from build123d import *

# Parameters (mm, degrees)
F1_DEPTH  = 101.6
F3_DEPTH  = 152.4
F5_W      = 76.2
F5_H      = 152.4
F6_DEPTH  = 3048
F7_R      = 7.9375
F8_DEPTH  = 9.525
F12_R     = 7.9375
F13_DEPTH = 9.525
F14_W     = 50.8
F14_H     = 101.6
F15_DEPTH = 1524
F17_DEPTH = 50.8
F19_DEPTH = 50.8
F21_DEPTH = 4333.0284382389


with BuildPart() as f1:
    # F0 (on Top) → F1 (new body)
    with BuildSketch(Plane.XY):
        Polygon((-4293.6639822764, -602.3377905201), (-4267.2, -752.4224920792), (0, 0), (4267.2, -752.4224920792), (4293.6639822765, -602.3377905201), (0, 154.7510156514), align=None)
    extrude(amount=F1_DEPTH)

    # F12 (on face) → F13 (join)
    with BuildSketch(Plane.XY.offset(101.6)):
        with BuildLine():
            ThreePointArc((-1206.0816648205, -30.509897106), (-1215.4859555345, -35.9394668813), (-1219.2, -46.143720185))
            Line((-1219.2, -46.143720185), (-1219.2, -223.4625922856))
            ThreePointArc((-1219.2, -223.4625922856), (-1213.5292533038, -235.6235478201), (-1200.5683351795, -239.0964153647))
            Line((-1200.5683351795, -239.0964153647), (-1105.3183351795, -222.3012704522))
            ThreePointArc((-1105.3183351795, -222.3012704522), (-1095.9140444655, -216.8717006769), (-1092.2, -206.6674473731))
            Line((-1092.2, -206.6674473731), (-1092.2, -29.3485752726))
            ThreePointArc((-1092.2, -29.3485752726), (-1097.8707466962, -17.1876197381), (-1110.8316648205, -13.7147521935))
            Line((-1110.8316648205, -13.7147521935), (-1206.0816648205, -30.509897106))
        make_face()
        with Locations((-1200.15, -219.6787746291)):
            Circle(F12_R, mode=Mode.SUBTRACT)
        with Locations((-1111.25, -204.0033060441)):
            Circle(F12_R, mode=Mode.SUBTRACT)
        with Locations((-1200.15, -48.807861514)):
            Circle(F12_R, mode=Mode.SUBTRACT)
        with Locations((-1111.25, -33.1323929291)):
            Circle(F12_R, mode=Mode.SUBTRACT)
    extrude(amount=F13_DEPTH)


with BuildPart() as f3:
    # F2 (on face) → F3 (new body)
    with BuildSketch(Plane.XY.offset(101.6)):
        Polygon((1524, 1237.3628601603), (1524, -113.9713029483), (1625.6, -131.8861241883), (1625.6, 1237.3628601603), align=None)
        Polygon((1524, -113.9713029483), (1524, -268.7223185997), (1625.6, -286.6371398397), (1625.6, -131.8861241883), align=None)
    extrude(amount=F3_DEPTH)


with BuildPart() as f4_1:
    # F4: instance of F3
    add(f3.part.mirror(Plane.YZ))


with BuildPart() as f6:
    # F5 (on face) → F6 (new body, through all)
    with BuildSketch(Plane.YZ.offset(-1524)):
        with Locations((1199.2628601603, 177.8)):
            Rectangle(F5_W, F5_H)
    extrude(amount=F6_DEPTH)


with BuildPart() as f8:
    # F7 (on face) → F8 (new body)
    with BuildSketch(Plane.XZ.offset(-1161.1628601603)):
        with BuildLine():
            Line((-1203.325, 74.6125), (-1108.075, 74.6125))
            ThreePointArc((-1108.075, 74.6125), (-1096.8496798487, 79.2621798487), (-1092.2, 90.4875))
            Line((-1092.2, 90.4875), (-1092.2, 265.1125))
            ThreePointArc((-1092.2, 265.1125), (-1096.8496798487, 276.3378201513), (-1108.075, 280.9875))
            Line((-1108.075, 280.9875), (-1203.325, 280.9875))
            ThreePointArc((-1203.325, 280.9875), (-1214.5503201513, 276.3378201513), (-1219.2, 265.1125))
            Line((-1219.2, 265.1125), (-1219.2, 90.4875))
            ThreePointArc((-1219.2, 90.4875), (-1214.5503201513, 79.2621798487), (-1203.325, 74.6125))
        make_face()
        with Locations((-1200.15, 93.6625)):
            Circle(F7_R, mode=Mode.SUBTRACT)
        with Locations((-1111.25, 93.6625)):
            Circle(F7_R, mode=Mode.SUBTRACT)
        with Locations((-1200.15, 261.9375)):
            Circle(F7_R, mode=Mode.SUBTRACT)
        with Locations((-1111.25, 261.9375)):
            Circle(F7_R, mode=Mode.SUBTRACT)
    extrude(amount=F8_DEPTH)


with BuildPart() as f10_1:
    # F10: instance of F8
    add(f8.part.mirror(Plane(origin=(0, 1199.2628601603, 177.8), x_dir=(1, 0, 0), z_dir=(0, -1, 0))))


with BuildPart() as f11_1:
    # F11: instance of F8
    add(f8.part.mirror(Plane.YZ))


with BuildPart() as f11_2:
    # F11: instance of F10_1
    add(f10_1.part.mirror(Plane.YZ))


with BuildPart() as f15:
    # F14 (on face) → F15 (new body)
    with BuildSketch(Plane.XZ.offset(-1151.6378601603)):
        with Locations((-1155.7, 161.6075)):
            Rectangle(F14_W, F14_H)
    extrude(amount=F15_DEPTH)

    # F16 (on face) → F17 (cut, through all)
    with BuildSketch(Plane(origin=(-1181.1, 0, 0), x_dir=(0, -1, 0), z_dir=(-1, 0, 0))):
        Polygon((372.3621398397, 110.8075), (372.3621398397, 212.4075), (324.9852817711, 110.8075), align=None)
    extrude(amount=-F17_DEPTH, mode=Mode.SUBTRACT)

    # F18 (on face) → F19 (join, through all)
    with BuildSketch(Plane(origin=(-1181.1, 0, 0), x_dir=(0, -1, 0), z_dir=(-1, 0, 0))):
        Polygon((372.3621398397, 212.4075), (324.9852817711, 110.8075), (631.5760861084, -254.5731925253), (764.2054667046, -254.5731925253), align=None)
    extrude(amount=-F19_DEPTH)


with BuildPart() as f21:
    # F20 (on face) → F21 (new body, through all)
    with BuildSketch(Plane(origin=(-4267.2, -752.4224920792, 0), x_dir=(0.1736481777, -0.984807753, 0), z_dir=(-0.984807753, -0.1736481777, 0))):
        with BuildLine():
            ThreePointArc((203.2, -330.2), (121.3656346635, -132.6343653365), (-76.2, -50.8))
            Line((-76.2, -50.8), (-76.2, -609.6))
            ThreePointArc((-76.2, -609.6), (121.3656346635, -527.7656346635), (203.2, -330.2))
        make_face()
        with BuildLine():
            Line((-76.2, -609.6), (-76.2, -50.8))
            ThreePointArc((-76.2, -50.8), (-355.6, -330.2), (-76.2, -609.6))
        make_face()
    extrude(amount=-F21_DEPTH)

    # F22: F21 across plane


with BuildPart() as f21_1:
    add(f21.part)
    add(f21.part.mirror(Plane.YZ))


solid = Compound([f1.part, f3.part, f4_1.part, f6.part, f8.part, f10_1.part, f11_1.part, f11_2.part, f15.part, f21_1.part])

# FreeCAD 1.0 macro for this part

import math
import FreeCAD as App
import Part
import Sketcher
from FreeCAD import Vector
Q = App.Units.Quantity

doc = App.newDocument("Part")
body = doc.addObject("PartDesign::Body", "Body")

# Sketch on XY plane
sketch1 = doc.addObject("Sketcher::SketchObject", "Sketch")
body.addObject(sketch1)
sketch1.AttachmentSupport = (doc.XY_Plane, [""])
sketch1.MapMode = "FlatFace"
sketch1.addGeometry([
    Part.LineSegment(Vector(-4293.663982, -602.337791, 0), Vector(-4267.2, -752.422492, 0)),  # 0
    Part.LineSegment(Vector(-4267.2, -752.422492, 0), Vector(0, 0, 0)),  # 1
    Part.LineSegment(Vector(0, 0, 0), Vector(4267.2, -752.422492, 0)),  # 2
    Part.LineSegment(Vector(4267.2, -752.422492, 0), Vector(4293.663982, -602.337791, 0)),  # 3
    Part.LineSegment(Vector(4293.663982, -602.337791, 0), Vector(0, 154.751016, 0)),  # 4
    Part.LineSegment(Vector(0, 154.751016, 0), Vector(-4293.663982, -602.337791, 0)),  # 5
], False)
sketch1.addConstraint([
    Sketcher.Constraint("Coincident", 0, 2, 1, 1),
    Sketcher.Constraint("Coincident", 1, 2, 2, 1),
    Sketcher.Constraint("Coincident", 2, 2, 3, 1),
    Sketcher.Constraint("Coincident", 3, 2, 4, 1),
    Sketcher.Constraint("Coincident", 4, 2, 5, 1),
    Sketcher.Constraint("Coincident", 5, 2, 0, 1),
    Sketcher.Constraint("Coincident", 1, 2, -1, 1),
    Sketcher.Constraint("Symmetric", 0, 2, 2, 2, -2),
    Sketcher.Constraint("Symmetric", 3, 2, 5, 2, -2),
    Sketcher.Constraint("PointOnObject", 4, 2, -2),
    Sketcher.Constraint("Perpendicular", 0, 1),
    Sketcher.Constraint("Perpendicular", 3, 4),
    Sketcher.Constraint("Distance", 0, Q("6 in")),
    Sketcher.Constraint("DistanceX", 0, 2, -1, 1, Q("168 in")),
    Sketcher.Constraint("Angle", 0, Q("-80 deg")),
])
pad1 = doc.addObject("PartDesign::Pad", "Pad")
body.addObject(pad1)
pad1.Profile = sketch1
pad1.Length = Q("4 in")

# Sketch on XY plane
sketch2 = doc.addObject("Sketcher::SketchObject", "Sketch001")
body.addObject(sketch2)
sketch2.AttachmentSupport = (doc.XY_Plane, [""])
sketch2.MapMode = "FlatFace"
sketch2.AttachmentOffset = App.Placement(Vector(0, 0, 4 * 25.4), App.Rotation())
sketch2.addGeometry([
    Part.ArcOfCircle(Part.Circle(Vector(-1203.325, -46.14372, 0), Vector(0, 0, 1), 15.875), math.radians(100), math.radians(180)),  # 0
    Part.LineSegment(Vector(-1219.2, -46.14372, 0), Vector(-1219.2, -223.462592, 0)),  # 1
    Part.ArcOfCircle(Part.Circle(Vector(-1203.325, -223.462592, 0), Vector(0, 0, 1), 15.875), math.radians(180), math.radians(280)),  # 2
    Part.LineSegment(Vector(-1200.568335, -239.096415, 0), Vector(-1105.318335, -222.30127, 0)),  # 3
    Part.ArcOfCircle(Part.Circle(Vector(-1108.075, -206.667447, 0), Vector(0, 0, 1), 15.875), math.radians(-80), math.radians(0)),  # 4
    Part.LineSegment(Vector(-1092.2, -206.667447, 0), Vector(-1092.2, -29.348575, 0)),  # 5
    Part.ArcOfCircle(Part.Circle(Vector(-1108.075, -29.348575, 0), Vector(0, 0, 1), 15.875), math.radians(0), math.radians(100)),  # 6
    Part.LineSegment(Vector(-1110.831665, -13.714752, 0), Vector(-1206.081665, -30.509897, 0)),  # 7
    Part.Circle(Vector(-1200.15, -219.678775, 0), Vector(0, 0, 1), 7.9375),  # 8
    Part.Circle(Vector(-1111.25, -204.003306, 0), Vector(0, 0, 1), 7.9375),  # 9
    Part.Circle(Vector(-1200.15, -48.807862, 0), Vector(0, 0, 1), 7.9375),  # 10
    Part.Circle(Vector(-1111.25, -33.132393, 0), Vector(0, 0, 1), 7.9375),  # 11
], False)
sketch2.addConstraint([
    Sketcher.Constraint("Tangent", 0, 2, 1, 1),
    Sketcher.Constraint("Tangent", 1, 2, 2, 1),
    Sketcher.Constraint("Tangent", 2, 2, 3, 1),
    Sketcher.Constraint("Tangent", 3, 2, 4, 1),
    Sketcher.Constraint("Tangent", 4, 2, 5, 1),
    Sketcher.Constraint("Tangent", 5, 2, 6, 1),
    Sketcher.Constraint("Tangent", 6, 2, 7, 1),
    Sketcher.Constraint("Tangent", 7, 2, 0, 1),
    Sketcher.Constraint("Vertical", 1),
    Sketcher.Constraint("Vertical", 5),
    Sketcher.Constraint("Equal", 0, 2),
    Sketcher.Constraint("Equal", 2, 4),
    Sketcher.Constraint("Equal", 4, 6),
    Sketcher.Constraint("Equal", 8, 9),
    Sketcher.Constraint("Equal", 9, 10),
    Sketcher.Constraint("Equal", 10, 11),
    Sketcher.Constraint("Parallel", 3, 7),
    Sketcher.Constraint("Vertical", 8, 3, 10, 3),
    Sketcher.Constraint("Vertical", 9, 3, 11, 3),
    Sketcher.Constraint("Diameter", 8, Q("0.625 in")),
    Sketcher.Constraint("DistanceX", 0, 2, -1, 1, Q("48 in")),
    Sketcher.Constraint("DistanceX", 4, 2, -1, 1, Q("43 in")),
    Sketcher.Constraint("Angle", 3, Q("10 deg")),
    Sketcher.Constraint("Radius", 0, Q("0.625 in")),
    Sketcher.Constraint("DistanceX", 8, 3, 9, 3, Q("3.5 in")),
    Sketcher.Constraint("DistanceX", 8, 3, -1, 1, Q("47.25 in")),
    Sketcher.Constraint("DistanceY", 8, 3, 6, 3, Q("190.330199 mm")),
    Sketcher.Constraint("DistanceY", 1, 2, 1, 1, Q("177.318872 mm")),
    Sketcher.Constraint("DistanceY", 0, 3, -1, 1, Q("46.14372 mm")),
    Sketcher.Constraint("DistanceY", 10, 3, -1, 1, Q("48.807862 mm")),
    Sketcher.Constraint("DistanceY", 4, 3, 9, 3, Q("2.664141 mm")),
    Sketcher.Constraint("DistanceY", 10, 3, 11, 3, Q("15.675469 mm")),
])
pad2 = doc.addObject("PartDesign::Pad", "Pad001")
body.addObject(pad2)
pad2.Profile = sketch2
pad2.Length = Q("0.375 in")
body2 = doc.addObject("PartDesign::Body", "Body001")

# Sketch on XY plane
sketch3 = doc.addObject("Sketcher::SketchObject", "Sketch002")
body2.addObject(sketch3)
sketch3.AttachmentSupport = (doc.getObject("XY_Plane001"), [""])
sketch3.MapMode = "FlatFace"
sketch3.AttachmentOffset = App.Placement(Vector(0, 0, 4 * 25.4), App.Rotation())
sketch3.addGeometry([
    Part.LineSegment(Vector(1524, 1237.36286, 0), Vector(1524, -268.722319, 0)),
    Part.LineSegment(Vector(1524, -268.722319, 0), Vector(1625.6, -286.63714, 0)),
    Part.LineSegment(Vector(1625.6, -286.63714, 0), Vector(1625.6, 1237.36286, 0)),
    Part.LineSegment(Vector(1625.6, 1237.36286, 0), Vector(1524, 1237.36286, 0)),
], False)
sketch3.addConstraint([
    Sketcher.Constraint("Coincident", 0, 2, 1, 1),
    Sketcher.Constraint("Coincident", 1, 2, 2, 1),
    Sketcher.Constraint("Coincident", 2, 2, 3, 1),
    Sketcher.Constraint("Coincident", 3, 2, 0, 1),
    Sketcher.Constraint("Vertical", 0),
    Sketcher.Constraint("Vertical", 2),
    Sketcher.Constraint("Horizontal", 3),
    Sketcher.Constraint("DistanceX", 3, 2, 3, 1, Q("4 in")),
    Sketcher.Constraint("DistanceY", 2, 1, 2, 2, Q("60 in")),
    Sketcher.Constraint("DistanceX", -1, 1, 0, 2, Q("60 in")),
    Sketcher.Constraint("Angle", 1, Q("-10 deg")),
    Sketcher.Constraint("DistanceY", 0, 2, -1, 1, Q("268.722319 mm")),
])
pad3 = doc.addObject("PartDesign::Pad", "Pad002")
body2.addObject(pad3)
pad3.Profile = sketch3
pad3.Length = Q("6 in")
body3 = doc.addObject("PartDesign::Body", "Body002")
doc.recompute()

mirroring = doc.addObject("Part::Mirroring", "Mirroring")
mirroring.Source = body2
mirroring.Base = Vector(0, 0, 0)
mirroring.Normal = Vector(1, 0, 0)
body3.BaseFeature = mirroring
doc.recompute()
body4 = doc.addObject("PartDesign::Body", "Body003")

# Sketch on YZ plane
sketch4 = doc.addObject("Sketcher::SketchObject", "Sketch003")
body4.addObject(sketch4)
sketch4.AttachmentSupport = (doc.getObject("YZ_Plane003"), [""])
sketch4.MapMode = "FlatFace"
sketch4.AttachmentOffset = App.Placement(Vector(0, 0, -60 * 25.4), App.Rotation())
sketch4.addGeometry([
    Part.LineSegment(Vector(1161.16286, 254, 0), Vector(1161.16286, 101.6, 0)),
    Part.LineSegment(Vector(1161.16286, 101.6, 0), Vector(1237.36286, 101.6, 0)),
    Part.LineSegment(Vector(1237.36286, 101.6, 0), Vector(1237.36286, 254, 0)),
    Part.LineSegment(Vector(1237.36286, 254, 0), Vector(1161.16286, 254, 0)),
], False)
sketch4.addConstraint([
    Sketcher.Constraint("Coincident", 0, 2, 1, 1),
    Sketcher.Constraint("Coincident", 1, 2, 2, 1),
    Sketcher.Constraint("Coincident", 2, 2, 3, 1),
    Sketcher.Constraint("Coincident", 3, 2, 0, 1),
    Sketcher.Constraint("Vertical", 0),
    Sketcher.Constraint("Horizontal", 1),
    Sketcher.Constraint("Vertical", 2),
    Sketcher.Constraint("Horizontal", 3),
    Sketcher.Constraint("DistanceX", 1, 1, 1, 2, Q("3 in")),
    Sketcher.Constraint("DistanceY", 0, 2, 0, 1, Q("6 in")),
    Sketcher.Constraint("DistanceY", -1, 1, 0, 2, Q("4 in")),
    Sketcher.Constraint("DistanceX", -1, 1, 0, 2, Q("1161.16286 mm")),
])
pad4 = doc.addObject("PartDesign::Pad", "Pad003")
body4.addObject(pad4)
pad4.Profile = sketch4
pad4.Length = Q("120 in")
body5 = doc.addObject("PartDesign::Body", "Body004")

# Sketch on XZ plane
sketch5 = doc.addObject("Sketcher::SketchObject", "Sketch004")
body5.addObject(sketch5)
sketch5.AttachmentSupport = (doc.getObject("XZ_Plane004"), [""])
sketch5.MapMode = "FlatFace"
sketch5.AttachmentOffset = App.Placement(Vector(0, 0, -1161.16286), App.Rotation())
sketch5.addGeometry([
    Part.LineSegment(Vector(-1203.325, 74.6125, 0), Vector(-1108.075, 74.6125, 0)),  # 0
    Part.ArcOfCircle(Part.Circle(Vector(-1108.075, 90.4875, 0), Vector(0, 0, 1), 15.875), math.radians(-90), math.radians(0)),  # 1
    Part.LineSegment(Vector(-1092.2, 90.4875, 0), Vector(-1092.2, 265.1125, 0)),  # 2
    Part.ArcOfCircle(Part.Circle(Vector(-1108.075, 265.1125, 0), Vector(0, 0, 1), 15.875), math.radians(0), math.radians(90)),  # 3
    Part.LineSegment(Vector(-1108.075, 280.9875, 0), Vector(-1203.325, 280.9875, 0)),  # 4
    Part.ArcOfCircle(Part.Circle(Vector(-1203.325, 265.1125, 0), Vector(0, 0, 1), 15.875), math.radians(90), math.radians(180)),  # 5
    Part.LineSegment(Vector(-1219.2, 265.1125, 0), Vector(-1219.2, 90.4875, 0)),  # 6
    Part.ArcOfCircle(Part.Circle(Vector(-1203.325, 90.4875, 0), Vector(0, 0, 1), 15.875), math.radians(180), math.radians(270)),  # 7
    Part.Circle(Vector(-1200.15, 93.6625, 0), Vector(0, 0, 1), 7.9375),  # 8
    Part.Circle(Vector(-1111.25, 93.6625, 0), Vector(0, 0, 1), 7.9375),  # 9
    Part.Circle(Vector(-1200.15, 261.9375, 0), Vector(0, 0, 1), 7.9375),  # 10
    Part.Circle(Vector(-1111.25, 261.9375, 0), Vector(0, 0, 1), 7.9375),  # 11
], False)
sketch5.addConstraint([
    Sketcher.Constraint("Tangent", 0, 2, 1, 1),
    Sketcher.Constraint("Tangent", 1, 2, 2, 1),
    Sketcher.Constraint("Tangent", 2, 2, 3, 1),
    Sketcher.Constraint("Tangent", 3, 2, 4, 1),
    Sketcher.Constraint("Tangent", 4, 2, 5, 1),
    Sketcher.Constraint("Tangent", 5, 2, 6, 1),
    Sketcher.Constraint("Tangent", 6, 2, 7, 1),
    Sketcher.Constraint("Tangent", 7, 2, 0, 1),
    Sketcher.Constraint("Horizontal", 0),
    Sketcher.Constraint("Vertical", 2),
    Sketcher.Constraint("Horizontal", 4),
    Sketcher.Constraint("Vertical", 6),
    Sketcher.Constraint("Equal", 1, 3),
    Sketcher.Constraint("Equal", 3, 5),
    Sketcher.Constraint("Equal", 5, 7),
    Sketcher.Constraint("Equal", 8, 9),
    Sketcher.Constraint("Equal", 9, 10),
    Sketcher.Constraint("Equal", 10, 11),
    Sketcher.Constraint("Horizontal", 8, 3, 9, 3),
    Sketcher.Constraint("Horizontal", 10, 3, 11, 3),
    Sketcher.Constraint("Vertical", 8, 3, 10, 3),
    Sketcher.Constraint("Vertical", 9, 3, 11, 3),
    Sketcher.Constraint("Diameter", 8, Q("0.625 in")),
    Sketcher.Constraint("DistanceX", 1, 2, -1, 1, Q("43 in")),
    Sketcher.Constraint("DistanceX", 5, 2, -1, 1, Q("48 in")),
    Sketcher.Constraint("Radius", 1, Q("0.625 in")),
    Sketcher.Constraint("DistanceX", 8, 3, 9, 3, Q("3.5 in")),
    Sketcher.Constraint("DistanceY", 2, 1, 2, 2, Q("6.875 in")),
    Sketcher.Constraint("DistanceX", 8, 3, -1, 1, Q("47.25 in")),
    Sketcher.Constraint("DistanceY", 8, 3, 5, 3, Q("6.75 in")),
    Sketcher.Constraint("DistanceY", 7, 3, 10, 3, Q("6.75 in")),
    Sketcher.Constraint("DistanceY", -1, 1, 1, 3, Q("3.5625 in")),
])
pad5 = doc.addObject("PartDesign::Pad", "Pad004")
body5.addObject(pad5)
pad5.Profile = sketch5
pad5.Length = Q("0.375 in")
body6 = doc.addObject("PartDesign::Body", "Body005")
doc.recompute()

mirroring2 = doc.addObject("Part::Mirroring", "Mirroring001")
mirroring2.Source = body5
mirroring2.Base = Vector(0, 1199.26286, 177.8)
mirroring2.Normal = Vector(0, -1, 0)
body6.BaseFeature = mirroring2
doc.recompute()
body7 = doc.addObject("PartDesign::Body", "Body006")
doc.recompute()

mirroring3 = doc.addObject("Part::Mirroring", "Mirroring002")
mirroring3.Source = body5
mirroring3.Base = Vector(0, 0, 0)
mirroring3.Normal = Vector(1, 0, 0)
body7.BaseFeature = mirroring3
doc.recompute()
body8 = doc.addObject("PartDesign::Body", "Body007")
doc.recompute()

mirroring4 = doc.addObject("Part::Mirroring", "Mirroring003")
mirroring4.Source = body6
mirroring4.Base = Vector(0, 0, 0)
mirroring4.Normal = Vector(1, 0, 0)
body8.BaseFeature = mirroring4
doc.recompute()
body9 = doc.addObject("PartDesign::Body", "Body008")

# Sketch on XZ plane
sketch6 = doc.addObject("Sketcher::SketchObject", "Sketch005")
body9.addObject(sketch6)
sketch6.AttachmentSupport = (doc.getObject("XZ_Plane008"), [""])
sketch6.MapMode = "FlatFace"
sketch6.AttachmentOffset = App.Placement(Vector(0, 0, -1151.63786), App.Rotation())
sketch6.addGeometry([
    Part.LineSegment(Vector(-1181.1, 212.4075, 0), Vector(-1181.1, 110.8075, 0)),
    Part.LineSegment(Vector(-1181.1, 110.8075, 0), Vector(-1130.3, 110.8075, 0)),
    Part.LineSegment(Vector(-1130.3, 110.8075, 0), Vector(-1130.3, 212.4075, 0)),
    Part.LineSegment(Vector(-1130.3, 212.4075, 0), Vector(-1181.1, 212.4075, 0)),
], False)
sketch6.addConstraint([
    Sketcher.Constraint("Coincident", 0, 2, 1, 1),
    Sketcher.Constraint("Coincident", 1, 2, 2, 1),
    Sketcher.Constraint("Coincident", 2, 2, 3, 1),
    Sketcher.Constraint("Coincident", 3, 2, 0, 1),
    Sketcher.Constraint("Vertical", 0),
    Sketcher.Constraint("Horizontal", 1),
    Sketcher.Constraint("Vertical", 2),
    Sketcher.Constraint("Horizontal", 3),
    Sketcher.Constraint("DistanceX", 1, 1, 1, 2, Q("2 in")),
    Sketcher.Constraint("DistanceY", 0, 2, 0, 1, Q("4 in")),
    Sketcher.Constraint("DistanceX", 0, 2, -1, 1, Q("46.5 in")),
    Sketcher.Constraint("DistanceY", -1, 1, 0, 2, Q("4.3625 in")),
])
pad6 = doc.addObject("PartDesign::Pad", "Pad005")
body9.addObject(pad6)
pad6.Profile = sketch6
pad6.Length = Q("60 in")

# Sketch on YZ plane
sketch7 = doc.addObject("Sketcher::SketchObject", "Sketch006")
body9.addObject(sketch7)
sketch7.AttachmentSupport = (doc.getObject("YZ_Plane008"), [""])
sketch7.MapMode = "FlatFace"
sketch7.AttachmentOffset = App.Placement(Vector(0, 0, -46.5 * 25.4), App.Rotation())
sketch7.addGeometry([
    Part.LineSegment(Vector(-372.36214, 110.8075, 0), Vector(-372.36214, 212.4075, 0)),
    Part.LineSegment(Vector(-372.36214, 212.4075, 0), Vector(-324.985282, 110.8075, 0)),
    Part.LineSegment(Vector(-324.985282, 110.8075, 0), Vector(-372.36214, 110.8075, 0)),
], False)
sketch7.addConstraint([
    Sketcher.Constraint("Coincident", 0, 2, 1, 1),
    Sketcher.Constraint("Coincident", 1, 2, 2, 1),
    Sketcher.Constraint("Coincident", 2, 2, 0, 1),
    Sketcher.Constraint("Vertical", 0),
    Sketcher.Constraint("Horizontal", 2),
    Sketcher.Constraint("DistanceY", 0, 1, 0, 2, Q("4 in")),
    Sketcher.Constraint("Angle", 1, Q("-65 deg")),
    Sketcher.Constraint("DistanceY", -1, 1, 0, 2, Q("8.3625 in")),
    Sketcher.Constraint("DistanceX", 0, 2, -1, 1, Q("372.36214 mm")),
])
pocket1 = doc.addObject("PartDesign::Pocket", "Pocket")
body9.addObject(pocket1)
pocket1.Profile = sketch7
pocket1.Type = "ThroughAll"
pocket1.Reversed = True

# Sketch on YZ plane
sketch8 = doc.addObject("Sketcher::SketchObject", "Sketch007")
body9.addObject(sketch8)
sketch8.AttachmentSupport = (doc.getObject("YZ_Plane008"), [""])
sketch8.MapMode = "FlatFace"
sketch8.AttachmentOffset = App.Placement(Vector(0, 0, -46.5 * 25.4), App.Rotation())
sketch8.addGeometry([
    Part.LineSegment(Vector(-372.36214, 212.4075, 0), Vector(-324.985282, 110.8075, 0)),
    Part.LineSegment(Vector(-324.985282, 110.8075, 0), Vector(-631.576086, -254.573193, 0)),
    Part.LineSegment(Vector(-631.576086, -254.573193, 0), Vector(-764.205467, -254.573193, 0)),
    Part.LineSegment(Vector(-764.205467, -254.573193, 0), Vector(-372.36214, 212.4075, 0)),
], False)
sketch8.addConstraint([
    Sketcher.Constraint("Coincident", 0, 2, 1, 1),
    Sketcher.Constraint("Coincident", 1, 2, 2, 1),
    Sketcher.Constraint("Coincident", 2, 2, 3, 1),
    Sketcher.Constraint("Coincident", 3, 2, 0, 1),
    Sketcher.Constraint("Horizontal", 2),
    Sketcher.Constraint("Parallel", 1, 3),
    Sketcher.Constraint("Distance", 3, Q("24 in")),
    Sketcher.Constraint("Angle", 0, Q("-65 deg")),
    Sketcher.Constraint("Angle", 1, Q("-130 deg")),
    Sketcher.Constraint("DistanceY", 0, 2, 3, 2, Q("4 in")),
    Sketcher.Constraint("DistanceY", -1, 1, 0, 2, Q("4.3625 in")),
    Sketcher.Constraint("DistanceX", 0, 2, -1, 1, Q("324.985282 mm")),
])
pad7 = doc.addObject("PartDesign::Pad", "Pad006")
body9.addObject(pad7)
pad7.Profile = sketch8
pad7.Length = Q("2 in")
body10 = doc.addObject("PartDesign::Body", "Body009")

# Sketch on an angled plane
sketch9 = doc.addObject("Sketcher::SketchObject", "Sketch008")
body10.addObject(sketch9)
sketch9.Placement = App.Placement(Vector(-4267.2, -752.422492, 0), App.Rotation(Vector(0.173648178, -0.984807753, 0), Vector(0, 0, 1), Vector(-0.984807753, -0.173648178, 0), "ZXY"))
sketch9.addGeometry(Part.Circle(Vector(-76.2, -330.2, 0), Vector(0, 0, 1), 279.4), False)
sketch9.addConstraint([
    Sketcher.Constraint("Diameter", 0, Q("22 in")),
    Sketcher.Constraint("DistanceX", 0, 3, -1, 1, Q("3 in")),
    Sketcher.Constraint("DistanceY", 0, 3, -1, 1, Q("13 in")),
])
pad8 = doc.addObject("PartDesign::Pad", "Pad007")
body10.addObject(pad8)
pad8.Profile = sketch9
pad8.Length = 4333.028438
pad8.Reversed = True
body11 = doc.addObject("PartDesign::Body", "Body010")
doc.recompute()

body11.BaseFeature = body10
doc.recompute()

mirroring5 = doc.addObject("Part::Mirroring", "Mirroring004")
mirroring5.Source = body10
mirroring5.Base = Vector(0, 0, 0)
mirroring5.Normal = Vector(1, 0, 0)
body12 = doc.addObject("PartDesign::Body", "Body011")
body12.BaseFeature = mirroring5
boolean = doc.addObject("PartDesign::Boolean", "Boolean")
body11.addObject(boolean)
boolean.Type = "Fuse"
boolean.addObjects([body12])
doc.recompute()
mirroring.Visibility = False
mirroring2.Visibility = False
mirroring3.Visibility = False
mirroring4.Visibility = False
mirroring5.Visibility = False

doc.recompute()
